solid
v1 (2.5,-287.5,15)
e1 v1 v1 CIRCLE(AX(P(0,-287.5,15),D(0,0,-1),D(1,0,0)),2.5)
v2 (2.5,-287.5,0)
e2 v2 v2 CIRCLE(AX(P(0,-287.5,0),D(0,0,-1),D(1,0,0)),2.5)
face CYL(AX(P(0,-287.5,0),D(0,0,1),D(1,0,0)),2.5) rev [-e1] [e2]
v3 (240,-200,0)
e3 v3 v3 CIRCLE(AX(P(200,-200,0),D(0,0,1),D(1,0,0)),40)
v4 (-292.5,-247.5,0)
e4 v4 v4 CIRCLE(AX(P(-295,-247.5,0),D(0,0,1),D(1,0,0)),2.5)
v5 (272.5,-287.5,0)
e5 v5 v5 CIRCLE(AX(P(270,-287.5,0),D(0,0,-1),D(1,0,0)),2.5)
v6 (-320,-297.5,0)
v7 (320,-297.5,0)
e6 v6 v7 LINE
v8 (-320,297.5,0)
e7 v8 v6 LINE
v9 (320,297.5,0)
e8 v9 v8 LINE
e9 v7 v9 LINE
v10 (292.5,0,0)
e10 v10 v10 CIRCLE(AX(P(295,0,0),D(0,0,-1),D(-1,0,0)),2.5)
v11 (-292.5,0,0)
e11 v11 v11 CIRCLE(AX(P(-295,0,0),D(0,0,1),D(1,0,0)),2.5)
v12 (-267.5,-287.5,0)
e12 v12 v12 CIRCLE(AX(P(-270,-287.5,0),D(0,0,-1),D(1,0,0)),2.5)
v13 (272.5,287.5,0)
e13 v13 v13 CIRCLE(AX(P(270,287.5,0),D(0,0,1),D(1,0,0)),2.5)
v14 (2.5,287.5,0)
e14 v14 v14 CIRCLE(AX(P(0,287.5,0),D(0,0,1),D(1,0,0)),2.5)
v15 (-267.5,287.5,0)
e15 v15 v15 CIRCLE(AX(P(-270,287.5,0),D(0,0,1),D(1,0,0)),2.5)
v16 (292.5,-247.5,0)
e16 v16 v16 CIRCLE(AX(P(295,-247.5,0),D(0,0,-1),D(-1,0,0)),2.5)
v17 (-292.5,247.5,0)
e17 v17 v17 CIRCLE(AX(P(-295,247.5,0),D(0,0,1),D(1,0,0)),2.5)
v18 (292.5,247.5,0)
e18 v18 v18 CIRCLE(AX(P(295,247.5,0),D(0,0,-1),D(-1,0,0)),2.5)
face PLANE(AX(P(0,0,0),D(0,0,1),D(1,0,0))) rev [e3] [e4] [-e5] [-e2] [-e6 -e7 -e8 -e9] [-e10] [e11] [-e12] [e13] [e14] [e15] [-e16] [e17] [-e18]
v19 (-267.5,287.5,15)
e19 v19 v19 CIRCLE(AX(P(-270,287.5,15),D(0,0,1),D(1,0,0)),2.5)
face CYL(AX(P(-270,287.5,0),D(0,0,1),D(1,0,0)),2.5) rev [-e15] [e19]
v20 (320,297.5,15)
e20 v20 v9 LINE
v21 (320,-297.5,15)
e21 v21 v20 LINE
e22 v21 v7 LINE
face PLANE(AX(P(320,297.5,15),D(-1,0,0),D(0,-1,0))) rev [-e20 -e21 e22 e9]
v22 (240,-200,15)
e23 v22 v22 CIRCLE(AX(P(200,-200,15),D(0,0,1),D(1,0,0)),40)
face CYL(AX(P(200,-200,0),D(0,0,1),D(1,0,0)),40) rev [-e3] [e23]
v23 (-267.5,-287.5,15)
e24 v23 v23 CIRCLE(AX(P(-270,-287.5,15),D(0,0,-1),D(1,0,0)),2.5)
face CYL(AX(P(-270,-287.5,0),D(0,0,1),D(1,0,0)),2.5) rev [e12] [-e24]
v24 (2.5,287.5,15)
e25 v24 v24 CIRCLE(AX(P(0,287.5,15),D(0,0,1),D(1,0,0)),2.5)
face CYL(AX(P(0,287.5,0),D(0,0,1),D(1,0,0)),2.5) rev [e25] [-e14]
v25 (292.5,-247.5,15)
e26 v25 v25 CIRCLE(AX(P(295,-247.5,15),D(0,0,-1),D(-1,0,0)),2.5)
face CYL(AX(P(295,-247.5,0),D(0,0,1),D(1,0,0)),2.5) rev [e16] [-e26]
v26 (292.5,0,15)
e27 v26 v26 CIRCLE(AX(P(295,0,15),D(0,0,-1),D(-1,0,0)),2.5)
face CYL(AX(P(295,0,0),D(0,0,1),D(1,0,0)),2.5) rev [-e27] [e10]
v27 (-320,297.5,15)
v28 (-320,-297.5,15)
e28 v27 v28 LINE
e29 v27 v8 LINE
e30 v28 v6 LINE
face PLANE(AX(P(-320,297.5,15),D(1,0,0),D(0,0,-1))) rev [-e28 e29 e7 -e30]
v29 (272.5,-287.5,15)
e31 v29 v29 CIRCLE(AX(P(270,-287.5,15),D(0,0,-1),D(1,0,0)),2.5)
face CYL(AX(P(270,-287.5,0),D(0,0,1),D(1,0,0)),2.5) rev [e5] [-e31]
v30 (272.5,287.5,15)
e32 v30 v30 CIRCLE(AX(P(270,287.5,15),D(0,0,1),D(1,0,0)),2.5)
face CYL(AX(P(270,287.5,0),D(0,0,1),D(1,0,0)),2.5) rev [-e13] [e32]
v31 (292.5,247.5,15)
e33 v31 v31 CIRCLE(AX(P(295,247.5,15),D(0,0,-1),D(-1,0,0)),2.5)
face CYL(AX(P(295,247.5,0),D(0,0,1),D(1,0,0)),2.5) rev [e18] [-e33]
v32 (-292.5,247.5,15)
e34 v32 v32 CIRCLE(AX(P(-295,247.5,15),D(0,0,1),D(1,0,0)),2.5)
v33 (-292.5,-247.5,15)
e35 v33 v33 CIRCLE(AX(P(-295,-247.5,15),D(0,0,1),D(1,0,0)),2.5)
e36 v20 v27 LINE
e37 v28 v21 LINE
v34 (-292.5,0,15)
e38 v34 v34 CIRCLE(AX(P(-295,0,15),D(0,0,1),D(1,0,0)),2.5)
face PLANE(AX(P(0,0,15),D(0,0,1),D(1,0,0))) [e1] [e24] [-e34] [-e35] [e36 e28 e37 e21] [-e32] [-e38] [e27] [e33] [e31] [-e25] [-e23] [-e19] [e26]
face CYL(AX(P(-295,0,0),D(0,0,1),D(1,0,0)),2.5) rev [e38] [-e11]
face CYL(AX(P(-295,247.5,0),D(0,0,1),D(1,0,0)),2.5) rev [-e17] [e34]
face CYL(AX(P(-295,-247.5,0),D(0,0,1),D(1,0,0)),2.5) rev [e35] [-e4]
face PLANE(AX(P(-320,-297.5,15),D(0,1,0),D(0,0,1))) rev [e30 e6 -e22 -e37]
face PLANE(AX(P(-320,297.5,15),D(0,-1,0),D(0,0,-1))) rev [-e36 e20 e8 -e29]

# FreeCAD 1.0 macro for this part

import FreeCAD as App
import Part
import Sketcher

V = App.Vector

doc = App.newDocument("Part")
body = doc.addObject("PartDesign::Body", "Body")

# Sketch on XY plane
sketch1 = doc.addObject("Sketcher::SketchObject", "Sketch")
body.addObject(sketch1)
sketch1.AttachmentSupport = (doc.XY_Plane, [""])
sketch1.MapMode = "FlatFace"
sketch1.addGeometry([
    Part.LineSegment(V(-320, 298, 0), V(-320, -298, 0)),
    Part.LineSegment(V(-320, -298, 0), V(320, -298, 0)),
    Part.LineSegment(V(320, -298, 0), V(320, 298, 0)),
    Part.LineSegment(V(320, 298, 0), V(-320, 298, 0)),
], False)
sketch1.addConstraint([
    Sketcher.Constraint("Coincident", 0, 2, 1, 1),
    Sketcher.Constraint("Coincident", 1, 2, 2, 1),
    Sketcher.Constraint("Coincident", 2, 2, 3, 1),
    Sketcher.Constraint("Coincident", 3, 2, 0, 1),
    Sketcher.Constraint("Vertical", 0),
    Sketcher.Constraint("Horizontal", 1),
    Sketcher.Constraint("Vertical", 2),
    Sketcher.Constraint("Horizontal", 3),
    Sketcher.Constraint("Symmetric", 0, 2, 2, 2, -1, 1),
    Sketcher.Constraint("DistanceX", 1, 1, 1, 2, 640.0),
    Sketcher.Constraint("DistanceY", 0, 2, 0, 1, 595.0),
])
pad1 = doc.addObject("PartDesign::Pad", "Pad")
body.addObject(pad1)
pad1.Profile = sketch1
pad1.Length = 15

# Sketch on XY plane
sketch2 = doc.addObject("Sketcher::SketchObject", "Sketch001")
body.addObject(sketch2)
sketch2.AttachmentSupport = (doc.XY_Plane, [""])
sketch2.MapMode = "FlatFace"
sketch2.AttachmentOffset = App.Placement(V(0, 0, 15), App.Rotation())
sketch2.addGeometry([
    Part.Circle(V(-270, 287.5, 0), V(0, 0, 1), 2.5),
    Part.Circle(V(0, 287.5, 0), V(0, 0, 1), 2.5),
    Part.Circle(V(270, 287.5, 0), V(0, 0, 1), 2.5),
], False)
sketch2.addConstraint([
    Sketcher.Constraint("Equal", 0, 1),
    Sketcher.Constraint("Equal", 1, 2),
    Sketcher.Constraint("Symmetric", 0, 3, 2, 3, -2),
    Sketcher.Constraint("PointOnObject", 1, 3, -2),
    Sketcher.Constraint("Horizontal", 0, 3, 1, 3),
    Sketcher.Constraint("Diameter", 0, 5.0),
    Sketcher.Constraint("DistanceX", 0, 3, -1, 1, 270.0),
    Sketcher.Constraint("DistanceY", -1, 1, 0, 3, 287.5),
])
pocket1 = doc.addObject("PartDesign::Pocket", "Pocket")
body.addObject(pocket1)
pocket1.Profile = sketch2
pocket1.Type = "ThroughAll"

# Sketch on XY plane
sketch3 = doc.addObject("Sketcher::SketchObject", "Sketch002")
body.addObject(sketch3)
sketch3.AttachmentSupport = (doc.XY_Plane, [""])
sketch3.MapMode = "FlatFace"
sketch3.AttachmentOffset = App.Placement(V(0, 0, 15), App.Rotation())
sketch3.addGeometry([
    Part.Circle(V(-295, 247.5, 0), V(0, 0, 1), 2.5),
    Part.Circle(V(-295, 0, 0), V(0, 0, 1), 2.5),
    Part.Circle(V(-295, -247.5, 0), V(0, 0, 1), 2.5),
], False)
sketch3.addConstraint([
    Sketcher.Constraint("Equal", 0, 1),
    Sketcher.Constraint("Equal", 1, 2),
    Sketcher.Constraint("Symmetric", 0, 3, 2, 3, -1),
    Sketcher.Constraint("PointOnObject", 1, 3, -1),
    Sketcher.Constraint("Vertical", 0, 3, 1, 3),
    Sketcher.Constraint("Diameter", 0, 5.0),
    Sketcher.Constraint("DistanceX", 0, 3, -1, 1, 295.0),
    Sketcher.Constraint("DistanceY", 2, 3, 0, 3, 495.0),
])
pocket2 = doc.addObject("PartDesign::Pocket", "Pocket001")
body.addObject(pocket2)
pocket2.Profile = sketch3
pocket2.Type = "ThroughAll"
doc.recompute()

mirrored = doc.addObject("PartDesign::Mirrored", "Mirrored")
body.addObject(mirrored)
mirrored.Originals = [pocket1]
mirrored.MirrorPlane = (doc.XZ_Plane, [""])
body.Tip = mirrored
doc.recompute()

mirrored2 = doc.addObject("PartDesign::Mirrored", "Mirrored001")
body.addObject(mirrored2)
mirrored2.Originals = [pocket2]
mirrored2.MirrorPlane = (doc.YZ_Plane, [""])
body.Tip = mirrored2

# Sketch on XY plane
sketch4 = doc.addObject("Sketcher::SketchObject", "Sketch003")
body.addObject(sketch4)
sketch4.AttachmentSupport = (doc.XY_Plane, [""])
sketch4.MapMode = "FlatFace"
sketch4.AttachmentOffset = App.Placement(V(0, 0, 15), App.Rotation())
sketch4.addGeometry(Part.Circle(V(200, -200, 0), V(0, 0, 1), 40), False)
sketch4.addConstraint([
    Sketcher.Constraint("Diameter", 0, 80.0),
    Sketcher.Constraint("DistanceX", -1, 1, 0, 3, 200.0),
    Sketcher.Constraint("DistanceY", 0, 3, -1, 1, 200.0),
])
pocket3 = doc.addObject("PartDesign::Pocket", "Pocket002")
body.addObject(pocket3)
pocket3.Profile = sketch4
pocket3.Type = "ThroughAll"

doc.recompute()
